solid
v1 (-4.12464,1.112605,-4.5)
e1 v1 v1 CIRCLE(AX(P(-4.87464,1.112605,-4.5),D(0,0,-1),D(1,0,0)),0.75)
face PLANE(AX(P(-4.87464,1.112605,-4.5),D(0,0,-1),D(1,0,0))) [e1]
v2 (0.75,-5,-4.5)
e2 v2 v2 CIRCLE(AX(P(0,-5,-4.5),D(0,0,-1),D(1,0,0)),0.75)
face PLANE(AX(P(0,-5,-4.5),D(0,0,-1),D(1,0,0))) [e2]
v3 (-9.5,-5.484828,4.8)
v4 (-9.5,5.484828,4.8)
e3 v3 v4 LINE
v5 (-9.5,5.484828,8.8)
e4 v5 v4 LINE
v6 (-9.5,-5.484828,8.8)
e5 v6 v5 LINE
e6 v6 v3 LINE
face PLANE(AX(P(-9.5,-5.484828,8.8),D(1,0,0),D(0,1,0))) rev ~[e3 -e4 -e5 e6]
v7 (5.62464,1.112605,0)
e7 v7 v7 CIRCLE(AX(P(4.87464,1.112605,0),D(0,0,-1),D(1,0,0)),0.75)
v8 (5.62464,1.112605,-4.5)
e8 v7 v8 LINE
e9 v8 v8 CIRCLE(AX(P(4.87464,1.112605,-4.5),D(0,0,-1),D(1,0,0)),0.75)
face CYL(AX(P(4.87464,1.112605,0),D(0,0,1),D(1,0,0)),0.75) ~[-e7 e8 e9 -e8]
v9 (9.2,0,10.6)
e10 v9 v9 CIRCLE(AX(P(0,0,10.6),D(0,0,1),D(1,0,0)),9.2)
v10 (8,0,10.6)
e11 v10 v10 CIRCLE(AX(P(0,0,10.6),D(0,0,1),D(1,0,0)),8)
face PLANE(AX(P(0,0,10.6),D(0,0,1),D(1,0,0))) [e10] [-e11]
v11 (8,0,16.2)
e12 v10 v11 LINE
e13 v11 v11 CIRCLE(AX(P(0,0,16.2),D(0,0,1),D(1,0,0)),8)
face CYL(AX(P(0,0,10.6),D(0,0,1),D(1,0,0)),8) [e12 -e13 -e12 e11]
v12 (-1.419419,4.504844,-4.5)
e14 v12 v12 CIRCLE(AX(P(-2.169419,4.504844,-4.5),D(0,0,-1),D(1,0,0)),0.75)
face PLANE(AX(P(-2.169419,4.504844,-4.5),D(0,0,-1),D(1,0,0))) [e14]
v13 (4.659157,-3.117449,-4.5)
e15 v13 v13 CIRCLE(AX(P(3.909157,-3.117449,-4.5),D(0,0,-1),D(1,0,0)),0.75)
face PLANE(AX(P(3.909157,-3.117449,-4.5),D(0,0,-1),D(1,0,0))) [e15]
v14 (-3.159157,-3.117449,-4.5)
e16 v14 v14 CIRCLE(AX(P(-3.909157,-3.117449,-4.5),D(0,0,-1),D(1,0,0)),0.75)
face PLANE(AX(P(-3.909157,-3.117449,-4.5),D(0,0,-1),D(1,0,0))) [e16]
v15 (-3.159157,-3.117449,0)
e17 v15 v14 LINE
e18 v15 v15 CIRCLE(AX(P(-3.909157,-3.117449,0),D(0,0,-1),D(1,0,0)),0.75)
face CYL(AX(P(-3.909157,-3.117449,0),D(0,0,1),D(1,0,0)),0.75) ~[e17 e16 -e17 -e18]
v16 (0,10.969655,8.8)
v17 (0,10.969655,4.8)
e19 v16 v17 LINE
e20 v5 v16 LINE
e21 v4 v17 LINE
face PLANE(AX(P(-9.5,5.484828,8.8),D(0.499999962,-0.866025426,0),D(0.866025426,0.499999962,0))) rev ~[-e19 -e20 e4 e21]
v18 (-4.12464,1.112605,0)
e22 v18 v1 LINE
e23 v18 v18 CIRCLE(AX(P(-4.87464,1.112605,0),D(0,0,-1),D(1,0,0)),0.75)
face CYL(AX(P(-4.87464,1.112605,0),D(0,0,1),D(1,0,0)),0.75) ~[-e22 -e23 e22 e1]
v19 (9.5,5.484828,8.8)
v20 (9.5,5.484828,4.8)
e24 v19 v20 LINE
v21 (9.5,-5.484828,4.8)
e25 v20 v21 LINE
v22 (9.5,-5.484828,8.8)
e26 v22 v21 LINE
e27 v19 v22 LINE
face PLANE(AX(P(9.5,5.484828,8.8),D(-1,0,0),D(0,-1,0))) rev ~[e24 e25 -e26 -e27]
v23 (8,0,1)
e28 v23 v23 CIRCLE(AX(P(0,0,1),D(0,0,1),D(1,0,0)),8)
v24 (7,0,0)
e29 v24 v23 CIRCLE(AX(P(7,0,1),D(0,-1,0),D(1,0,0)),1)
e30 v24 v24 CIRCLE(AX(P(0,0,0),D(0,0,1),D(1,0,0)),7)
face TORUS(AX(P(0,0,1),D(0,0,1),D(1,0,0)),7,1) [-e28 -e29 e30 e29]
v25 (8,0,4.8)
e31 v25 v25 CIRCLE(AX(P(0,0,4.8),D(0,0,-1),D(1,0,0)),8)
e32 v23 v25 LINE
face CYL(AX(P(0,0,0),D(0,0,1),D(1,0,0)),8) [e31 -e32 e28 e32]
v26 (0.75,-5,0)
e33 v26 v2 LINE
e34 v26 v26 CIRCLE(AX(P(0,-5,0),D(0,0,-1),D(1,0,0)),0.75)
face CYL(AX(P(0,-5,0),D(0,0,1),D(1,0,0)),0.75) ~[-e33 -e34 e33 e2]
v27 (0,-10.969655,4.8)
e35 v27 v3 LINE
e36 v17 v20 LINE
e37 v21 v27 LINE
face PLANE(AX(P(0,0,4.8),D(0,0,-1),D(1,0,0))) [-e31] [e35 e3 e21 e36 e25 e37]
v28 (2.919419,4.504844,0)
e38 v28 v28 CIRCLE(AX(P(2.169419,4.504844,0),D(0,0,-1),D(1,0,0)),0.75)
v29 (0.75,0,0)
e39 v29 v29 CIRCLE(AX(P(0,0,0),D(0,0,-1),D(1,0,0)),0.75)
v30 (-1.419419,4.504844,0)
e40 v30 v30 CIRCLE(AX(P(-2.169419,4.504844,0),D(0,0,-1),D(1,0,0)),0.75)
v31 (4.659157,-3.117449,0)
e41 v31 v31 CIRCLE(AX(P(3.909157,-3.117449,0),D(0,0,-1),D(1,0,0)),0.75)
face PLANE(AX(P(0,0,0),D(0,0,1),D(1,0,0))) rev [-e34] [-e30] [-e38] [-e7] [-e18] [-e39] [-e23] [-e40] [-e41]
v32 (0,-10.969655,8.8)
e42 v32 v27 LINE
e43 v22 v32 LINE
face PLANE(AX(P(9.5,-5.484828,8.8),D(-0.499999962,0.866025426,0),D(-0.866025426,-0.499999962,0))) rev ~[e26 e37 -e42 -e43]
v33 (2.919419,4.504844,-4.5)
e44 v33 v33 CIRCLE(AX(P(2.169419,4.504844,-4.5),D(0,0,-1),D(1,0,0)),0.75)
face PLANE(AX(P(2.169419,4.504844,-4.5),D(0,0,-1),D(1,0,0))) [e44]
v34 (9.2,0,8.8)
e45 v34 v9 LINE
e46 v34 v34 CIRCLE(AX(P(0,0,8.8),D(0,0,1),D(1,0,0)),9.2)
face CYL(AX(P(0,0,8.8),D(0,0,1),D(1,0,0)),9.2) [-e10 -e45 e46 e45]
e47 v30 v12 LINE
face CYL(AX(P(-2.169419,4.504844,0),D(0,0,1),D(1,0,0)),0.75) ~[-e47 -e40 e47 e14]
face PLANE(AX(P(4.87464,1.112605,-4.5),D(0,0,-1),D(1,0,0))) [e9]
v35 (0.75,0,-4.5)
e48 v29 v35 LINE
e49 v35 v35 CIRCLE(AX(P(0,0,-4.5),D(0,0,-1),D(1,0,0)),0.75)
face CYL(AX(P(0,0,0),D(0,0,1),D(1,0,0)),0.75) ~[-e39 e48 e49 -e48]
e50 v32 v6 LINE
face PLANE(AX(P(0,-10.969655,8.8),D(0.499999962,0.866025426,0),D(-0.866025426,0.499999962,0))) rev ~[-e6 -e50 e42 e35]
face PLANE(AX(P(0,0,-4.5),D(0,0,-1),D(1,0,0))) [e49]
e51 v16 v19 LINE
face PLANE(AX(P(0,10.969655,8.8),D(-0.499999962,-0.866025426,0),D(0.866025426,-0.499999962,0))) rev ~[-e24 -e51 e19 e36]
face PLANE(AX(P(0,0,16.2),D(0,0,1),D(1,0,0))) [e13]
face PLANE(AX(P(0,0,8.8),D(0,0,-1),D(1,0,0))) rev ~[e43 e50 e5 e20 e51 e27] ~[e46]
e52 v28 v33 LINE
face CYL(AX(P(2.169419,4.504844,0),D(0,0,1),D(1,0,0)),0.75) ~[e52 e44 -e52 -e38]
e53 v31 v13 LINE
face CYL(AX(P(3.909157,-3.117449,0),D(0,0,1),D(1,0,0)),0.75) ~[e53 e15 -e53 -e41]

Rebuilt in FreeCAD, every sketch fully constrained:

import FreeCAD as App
import Part
import Sketcher
from FreeCAD import Vector
Q = App.Units.Quantity


def edges_at(feature, points):
    """Names of the edges that pass closest to the given points."""
    edges = feature.Shape.Edges
    near = lambda p: min(range(len(edges)), key=lambda i: edges[i].distToShape(Part.Vertex(*p))[0])
    return sorted({f"Edge{near(p) + 1}" for p in points})

doc = App.newDocument("Part")
body = doc.addObject("PartDesign::Body", "Body")

sketch1 = body.newObject("Sketcher::SketchObject", "Sketch")
sketch1.AttachmentSupport = (doc.getObject("XZ_Plane"), [""])
sketch1.MapMode = "FlatFace"
sketch1.addGeometry([
    Part.LineSegment(Vector(0, 16.2, 0), Vector(0, 0, 0)),
    Part.LineSegment(Vector(0, 0, 0), Vector(8, 0, 0)),
    Part.LineSegment(Vector(8, 0, 0), Vector(8, 8.8, 0)),
    Part.LineSegment(Vector(8, 8.8, 0), Vector(9.2, 8.8, 0)),
    Part.LineSegment(Vector(9.2, 8.8, 0), Vector(9.2, 10.6, 0)),
    Part.LineSegment(Vector(9.2, 10.6, 0), Vector(8, 10.6, 0)),
    Part.LineSegment(Vector(8, 10.6, 0), Vector(8, 16.2, 0)),
    Part.LineSegment(Vector(8, 16.2, 0), Vector(0, 16.2, 0)),
], False)
sketch1.addConstraint([
    Sketcher.Constraint("Coincident", 0, 2, 1, 1),
    Sketcher.Constraint("Coincident", 1, 2, 2, 1),
    Sketcher.Constraint("Coincident", 2, 2, 3, 1),
    Sketcher.Constraint("Coincident", 3, 2, 4, 1),
    Sketcher.Constraint("Coincident", 4, 2, 5, 1),
    Sketcher.Constraint("Coincident", 5, 2, 6, 1),
    Sketcher.Constraint("Coincident", 6, 2, 7, 1),
    Sketcher.Constraint("Coincident", 7, 2, 0, 1),
    Sketcher.Constraint("Vertical", 0),
    Sketcher.Constraint("Horizontal", 1),
    Sketcher.Constraint("Vertical", 2),
    Sketcher.Constraint("Horizontal", 3),
    Sketcher.Constraint("Vertical", 4),
    Sketcher.Constraint("Horizontal", 5),
    Sketcher.Constraint("Vertical", 6),
    Sketcher.Constraint("Horizontal", 7),
    Sketcher.Constraint("Coincident", 0, 2, -1, 1),
    Sketcher.Constraint("Vertical", 2, 2, 5, 2),
    Sketcher.Constraint("DistanceX", 1, 1, 1, 2, 8.0),
    Sketcher.Constraint("DistanceX", 3, 1, 3, 2, 1.2),
    Sketcher.Constraint("DistanceY", 0, 2, 0, 1, 16.2),
    Sketcher.Constraint("DistanceY", 2, 1, 2, 2, 8.8),
    Sketcher.Constraint("DistanceY", 4, 1, 4, 2, 1.8),
])
revolution = body.newObject("PartDesign::Revolution", "Revolution")
revolution.Profile = sketch1
revolution.ReferenceAxis = (sketch1, ["V_Axis"])
revolution.Angle = 360
doc.recompute()

fillet = body.newObject("PartDesign::Fillet", "Fillet")
fillet.Base = (revolution, edges_at(revolution, [(-8, 0, 0)]))
fillet.Radius = 1

sketch2 = body.newObject("Sketcher::SketchObject", "Sketch001")
sketch2.AttachmentSupport = (doc.getObject("XY_Plane"), [""])
sketch2.MapMode = "FlatFace"
sketch2.addGeometry([
    Part.Circle(Vector(0, 0, 0), Vector(0, 0, 1), 0.8),
    Part.Circle(Vector(0, -5, 0), Vector(0, 0, 1), 0.8),
    Part.Circle(Vector(-3.9, -3.1, 0), Vector(0, 0, 1), 0.8),
    Part.Circle(Vector(-4.9, 1.1, 0), Vector(0, 0, 1), 0.8),
    Part.Circle(Vector(-2.2, 4.5, 0), Vector(0, 0, 1), 0.8),
    Part.Circle(Vector(2.2, 4.5, 0), Vector(0, 0, 1), 0.8),
    Part.Circle(Vector(4.9, 1.1, 0), Vector(0, 0, 1), 0.8),
    Part.Circle(Vector(3.9, -3.1, 0), Vector(0, 0, 1), 0.8),
], False)
sketch2.addConstraint([
    Sketcher.Constraint("Coincident", 0, 3, -1, 1),
    Sketcher.Constraint("Equal", 0, 1),
    Sketcher.Constraint("Equal", 1, 2),
    Sketcher.Constraint("Equal", 2, 3),
    Sketcher.Constraint("Equal", 3, 4),
    Sketcher.Constraint("Equal", 4, 5),
    Sketcher.Constraint("Equal", 5, 6),
    Sketcher.Constraint("Equal", 6, 7),
    Sketcher.Constraint("Symmetric", 4, 3, 5, 3, -2),
    Sketcher.Constraint("Symmetric", 3, 3, 6, 3, -2),
    Sketcher.Constraint("Symmetric", 2, 3, 7, 3, -2),
    Sketcher.Constraint("PointOnObject", 1, 3, -2),
    Sketcher.Constraint("Diameter", 0, 1.5),
    Sketcher.Constraint("DistanceY", 1, 3, -1, 1, 5.0),
    Sketcher.Constraint("DistanceY", 2, 3, -1, 1, 3.117449),
    Sketcher.Constraint("DistanceX", 3, 3, -1, 1, 4.87464),
    Sketcher.Constraint("DistanceX", 4, 3, -1, 1, 2.169419),
    Sketcher.Constraint("DistanceY", 3, 3, 4, 3, 3.392239),
    Sketcher.Constraint("DistanceX", 2, 3, -1, 1, 3.909157),
    Sketcher.Constraint("DistanceY", -1, 1, 3, 3, 1.112605),
])
pad1 = body.newObject("PartDesign::Pad", "Pad")
pad1.Profile = sketch2
pad1.Length = 4.5
pad1.Reversed = True

sketch3 = body.newObject("Sketcher::SketchObject", "Sketch002")
sketch3.AttachmentSupport = (doc.getObject("XY_Plane"), [""])
sketch3.MapMode = "FlatFace"
sketch3.AttachmentOffset = App.Placement(Vector(0, 0, 8.8), App.Rotation())
sketch3.addGeometry([
    Part.LineSegment(Vector(10, 5, 0), Vector(10, -5, 0)),
    Part.LineSegment(Vector(10, -5, 0), Vector(0, -11, 0)),
    Part.LineSegment(Vector(0, -11, 0), Vector(-10, -5, 0)),
    Part.LineSegment(Vector(-10, -5, 0), Vector(-10, 5, 0)),
    Part.LineSegment(Vector(-10, 5, 0), Vector(0, 11, 0)),
    Part.LineSegment(Vector(0, 11, 0), Vector(10, 5, 0)),
    Part.Circle(Vector(0, 0, 0), Vector(0, 0, 1), 8),
], False)
sketch3.addConstraint([
    Sketcher.Constraint("Coincident", 0, 2, 1, 1),
    Sketcher.Constraint("Coincident", 1, 2, 2, 1),
    Sketcher.Constraint("Coincident", 2, 2, 3, 1),
    Sketcher.Constraint("Coincident", 3, 2, 4, 1),
    Sketcher.Constraint("Coincident", 4, 2, 5, 1),
    Sketcher.Constraint("Coincident", 5, 2, 0, 1),
    Sketcher.Constraint("Vertical", 0),
    Sketcher.Constraint("Vertical", 3),
    Sketcher.Constraint("Coincident", 6, 3, -1, 1),
    Sketcher.Constraint("Symmetric", 0, 2, 3, 2, -1, 1),
    Sketcher.Constraint("Symmetric", 1, 2, 4, 2, -1, 1),
    Sketcher.Constraint("PointOnObject", 1, 2, -2),
    Sketcher.Constraint("Parallel", 2, 5),
    Sketcher.Constraint("Horizontal", 0, 2, 2, 2),
    Sketcher.Constraint("Diameter", 6, 16.0),
    Sketcher.Constraint("Angle", 1, Q("-150.000003 deg")),
    Sketcher.Constraint("DistanceX", 2, 2, 0, 2, 19.0),
    Sketcher.Constraint("DistanceY", 0, 2, 0, 1, 10.969656),
])
pad2 = body.newObject("PartDesign::Pad", "Pad001")
pad2.Profile = sketch3
pad2.Length = 4
pad2.Reversed = True

doc.recompute()
